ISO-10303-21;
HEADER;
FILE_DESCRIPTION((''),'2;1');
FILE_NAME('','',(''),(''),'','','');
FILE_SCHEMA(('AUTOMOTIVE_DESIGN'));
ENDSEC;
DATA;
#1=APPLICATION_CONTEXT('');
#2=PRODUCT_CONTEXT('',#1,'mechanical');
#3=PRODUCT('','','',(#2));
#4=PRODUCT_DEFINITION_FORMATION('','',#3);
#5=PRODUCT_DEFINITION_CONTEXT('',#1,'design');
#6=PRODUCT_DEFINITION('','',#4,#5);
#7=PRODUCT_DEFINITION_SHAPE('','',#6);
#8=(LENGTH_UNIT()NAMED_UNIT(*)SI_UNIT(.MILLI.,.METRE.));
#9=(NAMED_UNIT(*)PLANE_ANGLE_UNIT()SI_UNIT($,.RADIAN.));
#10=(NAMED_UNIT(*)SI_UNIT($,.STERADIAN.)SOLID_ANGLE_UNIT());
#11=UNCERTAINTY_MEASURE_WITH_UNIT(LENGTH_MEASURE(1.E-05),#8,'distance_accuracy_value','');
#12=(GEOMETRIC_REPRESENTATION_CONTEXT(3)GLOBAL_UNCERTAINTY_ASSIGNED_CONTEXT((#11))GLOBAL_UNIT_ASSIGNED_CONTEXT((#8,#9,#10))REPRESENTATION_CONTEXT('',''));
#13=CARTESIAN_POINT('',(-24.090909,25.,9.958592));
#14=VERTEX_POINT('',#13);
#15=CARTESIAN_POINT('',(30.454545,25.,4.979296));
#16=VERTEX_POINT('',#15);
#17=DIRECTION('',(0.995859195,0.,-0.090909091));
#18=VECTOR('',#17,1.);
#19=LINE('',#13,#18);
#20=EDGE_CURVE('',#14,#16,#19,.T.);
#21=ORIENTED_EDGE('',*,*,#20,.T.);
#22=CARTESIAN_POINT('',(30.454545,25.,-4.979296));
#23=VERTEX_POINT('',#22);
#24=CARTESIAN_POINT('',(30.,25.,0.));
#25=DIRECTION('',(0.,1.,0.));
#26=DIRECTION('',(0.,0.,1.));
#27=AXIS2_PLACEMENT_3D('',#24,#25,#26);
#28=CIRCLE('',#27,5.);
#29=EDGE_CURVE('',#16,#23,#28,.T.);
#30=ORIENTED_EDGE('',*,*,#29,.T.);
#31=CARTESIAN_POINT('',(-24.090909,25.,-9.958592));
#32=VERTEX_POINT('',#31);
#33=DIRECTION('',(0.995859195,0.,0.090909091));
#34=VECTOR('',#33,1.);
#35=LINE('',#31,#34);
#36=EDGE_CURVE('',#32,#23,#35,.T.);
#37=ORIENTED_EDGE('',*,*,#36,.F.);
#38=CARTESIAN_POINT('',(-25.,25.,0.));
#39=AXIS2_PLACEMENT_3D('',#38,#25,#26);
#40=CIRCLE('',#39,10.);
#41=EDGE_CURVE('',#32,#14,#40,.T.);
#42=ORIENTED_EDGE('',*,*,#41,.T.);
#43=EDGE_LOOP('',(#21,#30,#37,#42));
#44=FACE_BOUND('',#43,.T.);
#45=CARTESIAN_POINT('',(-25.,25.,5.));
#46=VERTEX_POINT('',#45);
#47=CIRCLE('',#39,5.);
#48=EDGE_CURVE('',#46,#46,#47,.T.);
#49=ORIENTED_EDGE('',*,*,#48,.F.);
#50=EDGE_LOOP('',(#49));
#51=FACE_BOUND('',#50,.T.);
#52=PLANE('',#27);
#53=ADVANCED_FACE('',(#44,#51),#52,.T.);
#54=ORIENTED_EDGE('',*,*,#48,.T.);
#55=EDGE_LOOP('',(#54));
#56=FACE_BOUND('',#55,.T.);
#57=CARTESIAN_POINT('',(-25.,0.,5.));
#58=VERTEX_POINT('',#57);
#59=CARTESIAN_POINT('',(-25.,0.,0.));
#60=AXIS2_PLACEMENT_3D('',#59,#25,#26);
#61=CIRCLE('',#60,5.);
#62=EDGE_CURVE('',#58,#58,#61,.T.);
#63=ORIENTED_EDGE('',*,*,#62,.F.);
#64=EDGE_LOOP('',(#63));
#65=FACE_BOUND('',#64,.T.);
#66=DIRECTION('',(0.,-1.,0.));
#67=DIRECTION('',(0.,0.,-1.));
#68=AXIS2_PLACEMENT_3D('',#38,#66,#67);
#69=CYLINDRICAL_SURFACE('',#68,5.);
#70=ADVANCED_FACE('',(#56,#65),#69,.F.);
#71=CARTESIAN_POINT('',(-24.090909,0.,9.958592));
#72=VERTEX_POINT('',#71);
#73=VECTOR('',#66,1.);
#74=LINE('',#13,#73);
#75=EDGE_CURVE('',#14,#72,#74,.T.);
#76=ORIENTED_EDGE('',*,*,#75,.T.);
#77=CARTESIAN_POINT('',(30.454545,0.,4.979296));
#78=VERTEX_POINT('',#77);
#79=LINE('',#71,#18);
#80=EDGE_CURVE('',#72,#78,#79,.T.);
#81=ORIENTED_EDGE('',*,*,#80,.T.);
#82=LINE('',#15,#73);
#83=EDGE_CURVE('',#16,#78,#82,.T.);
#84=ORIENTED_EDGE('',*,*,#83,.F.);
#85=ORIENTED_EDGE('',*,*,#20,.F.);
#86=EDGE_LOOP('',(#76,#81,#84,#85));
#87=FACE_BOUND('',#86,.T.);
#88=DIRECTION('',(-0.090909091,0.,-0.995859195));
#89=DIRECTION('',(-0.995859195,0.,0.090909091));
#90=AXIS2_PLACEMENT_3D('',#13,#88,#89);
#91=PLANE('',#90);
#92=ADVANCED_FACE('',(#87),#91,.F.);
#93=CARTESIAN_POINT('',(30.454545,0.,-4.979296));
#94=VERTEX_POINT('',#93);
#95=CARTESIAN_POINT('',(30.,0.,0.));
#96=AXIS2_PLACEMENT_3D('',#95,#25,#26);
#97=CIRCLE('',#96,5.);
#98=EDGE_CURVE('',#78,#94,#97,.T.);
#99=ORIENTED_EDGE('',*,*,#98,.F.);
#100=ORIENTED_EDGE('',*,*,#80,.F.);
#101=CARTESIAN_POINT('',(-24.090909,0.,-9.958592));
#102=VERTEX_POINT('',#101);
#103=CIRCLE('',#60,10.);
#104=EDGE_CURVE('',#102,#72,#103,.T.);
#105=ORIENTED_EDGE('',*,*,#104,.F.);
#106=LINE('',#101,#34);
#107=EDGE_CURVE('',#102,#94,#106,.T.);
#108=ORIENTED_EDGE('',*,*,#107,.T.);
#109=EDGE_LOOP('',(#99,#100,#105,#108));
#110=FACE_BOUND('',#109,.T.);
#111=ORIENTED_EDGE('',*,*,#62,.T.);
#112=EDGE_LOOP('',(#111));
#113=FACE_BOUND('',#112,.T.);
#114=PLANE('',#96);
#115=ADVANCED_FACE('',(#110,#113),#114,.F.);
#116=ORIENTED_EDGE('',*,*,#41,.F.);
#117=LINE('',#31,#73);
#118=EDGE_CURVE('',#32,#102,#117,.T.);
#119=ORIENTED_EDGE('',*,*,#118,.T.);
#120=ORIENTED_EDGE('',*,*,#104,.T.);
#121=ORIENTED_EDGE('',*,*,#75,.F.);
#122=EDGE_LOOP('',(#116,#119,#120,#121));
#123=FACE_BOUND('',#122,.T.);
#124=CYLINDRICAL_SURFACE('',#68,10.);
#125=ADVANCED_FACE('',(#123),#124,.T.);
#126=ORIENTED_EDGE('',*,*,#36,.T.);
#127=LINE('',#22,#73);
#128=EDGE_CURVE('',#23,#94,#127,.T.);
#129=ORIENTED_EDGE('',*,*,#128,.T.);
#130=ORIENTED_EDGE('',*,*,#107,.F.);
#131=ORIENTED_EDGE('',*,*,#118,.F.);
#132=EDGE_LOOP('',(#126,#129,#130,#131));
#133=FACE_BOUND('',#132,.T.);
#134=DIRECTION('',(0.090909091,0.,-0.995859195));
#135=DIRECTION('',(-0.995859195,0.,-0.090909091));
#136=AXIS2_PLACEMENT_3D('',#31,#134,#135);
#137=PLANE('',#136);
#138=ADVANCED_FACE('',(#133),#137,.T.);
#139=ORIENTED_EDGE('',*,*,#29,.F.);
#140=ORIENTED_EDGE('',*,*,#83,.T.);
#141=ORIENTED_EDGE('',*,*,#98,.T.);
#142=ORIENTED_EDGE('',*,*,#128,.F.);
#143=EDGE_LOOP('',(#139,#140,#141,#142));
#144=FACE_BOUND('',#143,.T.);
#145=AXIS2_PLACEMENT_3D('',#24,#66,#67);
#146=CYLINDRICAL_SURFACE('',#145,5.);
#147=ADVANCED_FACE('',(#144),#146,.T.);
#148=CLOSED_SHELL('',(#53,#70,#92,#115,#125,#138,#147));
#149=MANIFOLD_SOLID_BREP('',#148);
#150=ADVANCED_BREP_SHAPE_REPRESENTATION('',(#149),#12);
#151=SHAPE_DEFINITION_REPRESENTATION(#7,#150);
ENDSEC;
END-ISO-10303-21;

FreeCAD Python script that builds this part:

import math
import FreeCAD as App
import Part
import Sketcher

V = App.Vector
Q = App.Units.Quantity

doc = App.newDocument("Part")
body = doc.addObject("PartDesign::Body", "Body")

sketch1 = body.newObject("Sketcher::SketchObject", "Sketch")
sketch1.AttachmentSupport = (doc.getObject("XZ_Plane"), [""])
sketch1.MapMode = "FlatFace"
sketch1.addGeometry(Part.LineSegment(V(30, -5, 0), V(-24, -10, 0)), False)
sketch1.addGeometry(Part.ArcOfCircle(Part.Circle(V(-25, 0, 0), V(0, 0, 1), 10), math.radians(85), math.radians(275)), False)
sketch1.addGeometry(Part.LineSegment(V(-24, 10, 0), V(30, 5, 0)), False)
sketch1.addGeometry(Part.ArcOfCircle(Part.Circle(V(30, 0, 0), V(0, 0, 1), 5), math.radians(-85), math.radians(85)), False)
sketch1.addGeometry(Part.Circle(V(-25, 0, 0), V(0, 0, 1), 5), False)
sketch1.addConstraint(Sketcher.Constraint("Tangent", 0, 2, 1, 2))
sketch1.addConstraint(Sketcher.Constraint("Tangent", 1, 1, 2, 1))
sketch1.addConstraint(Sketcher.Constraint("Tangent", 2, 2, 3, 2))
sketch1.addConstraint(Sketcher.Constraint("Tangent", 3, 1, 0, 1))
sketch1.addConstraint(Sketcher.Constraint("Coincident", 4, 3, 1, 3))
sketch1.addConstraint(Sketcher.Constraint("Equal", 3, 4))
sketch1.addConstraint(Sketcher.Constraint("Symmetric", 0, 2, 1, 1, -1))
sketch1.addConstraint(Sketcher.Constraint("Diameter", 4, Q("10 mm")))
sketch1.addConstraint(Sketcher.Constraint("Radius", 1, Q("10 mm")))
sketch1.addConstraint(Sketcher.Constraint("DistanceX", 1, 3, -1, 1, Q("25 mm")))
sketch1.addConstraint(Sketcher.Constraint("DistanceX", -1, 1, 3, 3, Q("30 mm")))
pad1 = body.newObject("PartDesign::Pad", "Pad")
pad1.Profile = sketch1
pad1.Length = 25
pad1.Reversed = True

doc.recompute()
